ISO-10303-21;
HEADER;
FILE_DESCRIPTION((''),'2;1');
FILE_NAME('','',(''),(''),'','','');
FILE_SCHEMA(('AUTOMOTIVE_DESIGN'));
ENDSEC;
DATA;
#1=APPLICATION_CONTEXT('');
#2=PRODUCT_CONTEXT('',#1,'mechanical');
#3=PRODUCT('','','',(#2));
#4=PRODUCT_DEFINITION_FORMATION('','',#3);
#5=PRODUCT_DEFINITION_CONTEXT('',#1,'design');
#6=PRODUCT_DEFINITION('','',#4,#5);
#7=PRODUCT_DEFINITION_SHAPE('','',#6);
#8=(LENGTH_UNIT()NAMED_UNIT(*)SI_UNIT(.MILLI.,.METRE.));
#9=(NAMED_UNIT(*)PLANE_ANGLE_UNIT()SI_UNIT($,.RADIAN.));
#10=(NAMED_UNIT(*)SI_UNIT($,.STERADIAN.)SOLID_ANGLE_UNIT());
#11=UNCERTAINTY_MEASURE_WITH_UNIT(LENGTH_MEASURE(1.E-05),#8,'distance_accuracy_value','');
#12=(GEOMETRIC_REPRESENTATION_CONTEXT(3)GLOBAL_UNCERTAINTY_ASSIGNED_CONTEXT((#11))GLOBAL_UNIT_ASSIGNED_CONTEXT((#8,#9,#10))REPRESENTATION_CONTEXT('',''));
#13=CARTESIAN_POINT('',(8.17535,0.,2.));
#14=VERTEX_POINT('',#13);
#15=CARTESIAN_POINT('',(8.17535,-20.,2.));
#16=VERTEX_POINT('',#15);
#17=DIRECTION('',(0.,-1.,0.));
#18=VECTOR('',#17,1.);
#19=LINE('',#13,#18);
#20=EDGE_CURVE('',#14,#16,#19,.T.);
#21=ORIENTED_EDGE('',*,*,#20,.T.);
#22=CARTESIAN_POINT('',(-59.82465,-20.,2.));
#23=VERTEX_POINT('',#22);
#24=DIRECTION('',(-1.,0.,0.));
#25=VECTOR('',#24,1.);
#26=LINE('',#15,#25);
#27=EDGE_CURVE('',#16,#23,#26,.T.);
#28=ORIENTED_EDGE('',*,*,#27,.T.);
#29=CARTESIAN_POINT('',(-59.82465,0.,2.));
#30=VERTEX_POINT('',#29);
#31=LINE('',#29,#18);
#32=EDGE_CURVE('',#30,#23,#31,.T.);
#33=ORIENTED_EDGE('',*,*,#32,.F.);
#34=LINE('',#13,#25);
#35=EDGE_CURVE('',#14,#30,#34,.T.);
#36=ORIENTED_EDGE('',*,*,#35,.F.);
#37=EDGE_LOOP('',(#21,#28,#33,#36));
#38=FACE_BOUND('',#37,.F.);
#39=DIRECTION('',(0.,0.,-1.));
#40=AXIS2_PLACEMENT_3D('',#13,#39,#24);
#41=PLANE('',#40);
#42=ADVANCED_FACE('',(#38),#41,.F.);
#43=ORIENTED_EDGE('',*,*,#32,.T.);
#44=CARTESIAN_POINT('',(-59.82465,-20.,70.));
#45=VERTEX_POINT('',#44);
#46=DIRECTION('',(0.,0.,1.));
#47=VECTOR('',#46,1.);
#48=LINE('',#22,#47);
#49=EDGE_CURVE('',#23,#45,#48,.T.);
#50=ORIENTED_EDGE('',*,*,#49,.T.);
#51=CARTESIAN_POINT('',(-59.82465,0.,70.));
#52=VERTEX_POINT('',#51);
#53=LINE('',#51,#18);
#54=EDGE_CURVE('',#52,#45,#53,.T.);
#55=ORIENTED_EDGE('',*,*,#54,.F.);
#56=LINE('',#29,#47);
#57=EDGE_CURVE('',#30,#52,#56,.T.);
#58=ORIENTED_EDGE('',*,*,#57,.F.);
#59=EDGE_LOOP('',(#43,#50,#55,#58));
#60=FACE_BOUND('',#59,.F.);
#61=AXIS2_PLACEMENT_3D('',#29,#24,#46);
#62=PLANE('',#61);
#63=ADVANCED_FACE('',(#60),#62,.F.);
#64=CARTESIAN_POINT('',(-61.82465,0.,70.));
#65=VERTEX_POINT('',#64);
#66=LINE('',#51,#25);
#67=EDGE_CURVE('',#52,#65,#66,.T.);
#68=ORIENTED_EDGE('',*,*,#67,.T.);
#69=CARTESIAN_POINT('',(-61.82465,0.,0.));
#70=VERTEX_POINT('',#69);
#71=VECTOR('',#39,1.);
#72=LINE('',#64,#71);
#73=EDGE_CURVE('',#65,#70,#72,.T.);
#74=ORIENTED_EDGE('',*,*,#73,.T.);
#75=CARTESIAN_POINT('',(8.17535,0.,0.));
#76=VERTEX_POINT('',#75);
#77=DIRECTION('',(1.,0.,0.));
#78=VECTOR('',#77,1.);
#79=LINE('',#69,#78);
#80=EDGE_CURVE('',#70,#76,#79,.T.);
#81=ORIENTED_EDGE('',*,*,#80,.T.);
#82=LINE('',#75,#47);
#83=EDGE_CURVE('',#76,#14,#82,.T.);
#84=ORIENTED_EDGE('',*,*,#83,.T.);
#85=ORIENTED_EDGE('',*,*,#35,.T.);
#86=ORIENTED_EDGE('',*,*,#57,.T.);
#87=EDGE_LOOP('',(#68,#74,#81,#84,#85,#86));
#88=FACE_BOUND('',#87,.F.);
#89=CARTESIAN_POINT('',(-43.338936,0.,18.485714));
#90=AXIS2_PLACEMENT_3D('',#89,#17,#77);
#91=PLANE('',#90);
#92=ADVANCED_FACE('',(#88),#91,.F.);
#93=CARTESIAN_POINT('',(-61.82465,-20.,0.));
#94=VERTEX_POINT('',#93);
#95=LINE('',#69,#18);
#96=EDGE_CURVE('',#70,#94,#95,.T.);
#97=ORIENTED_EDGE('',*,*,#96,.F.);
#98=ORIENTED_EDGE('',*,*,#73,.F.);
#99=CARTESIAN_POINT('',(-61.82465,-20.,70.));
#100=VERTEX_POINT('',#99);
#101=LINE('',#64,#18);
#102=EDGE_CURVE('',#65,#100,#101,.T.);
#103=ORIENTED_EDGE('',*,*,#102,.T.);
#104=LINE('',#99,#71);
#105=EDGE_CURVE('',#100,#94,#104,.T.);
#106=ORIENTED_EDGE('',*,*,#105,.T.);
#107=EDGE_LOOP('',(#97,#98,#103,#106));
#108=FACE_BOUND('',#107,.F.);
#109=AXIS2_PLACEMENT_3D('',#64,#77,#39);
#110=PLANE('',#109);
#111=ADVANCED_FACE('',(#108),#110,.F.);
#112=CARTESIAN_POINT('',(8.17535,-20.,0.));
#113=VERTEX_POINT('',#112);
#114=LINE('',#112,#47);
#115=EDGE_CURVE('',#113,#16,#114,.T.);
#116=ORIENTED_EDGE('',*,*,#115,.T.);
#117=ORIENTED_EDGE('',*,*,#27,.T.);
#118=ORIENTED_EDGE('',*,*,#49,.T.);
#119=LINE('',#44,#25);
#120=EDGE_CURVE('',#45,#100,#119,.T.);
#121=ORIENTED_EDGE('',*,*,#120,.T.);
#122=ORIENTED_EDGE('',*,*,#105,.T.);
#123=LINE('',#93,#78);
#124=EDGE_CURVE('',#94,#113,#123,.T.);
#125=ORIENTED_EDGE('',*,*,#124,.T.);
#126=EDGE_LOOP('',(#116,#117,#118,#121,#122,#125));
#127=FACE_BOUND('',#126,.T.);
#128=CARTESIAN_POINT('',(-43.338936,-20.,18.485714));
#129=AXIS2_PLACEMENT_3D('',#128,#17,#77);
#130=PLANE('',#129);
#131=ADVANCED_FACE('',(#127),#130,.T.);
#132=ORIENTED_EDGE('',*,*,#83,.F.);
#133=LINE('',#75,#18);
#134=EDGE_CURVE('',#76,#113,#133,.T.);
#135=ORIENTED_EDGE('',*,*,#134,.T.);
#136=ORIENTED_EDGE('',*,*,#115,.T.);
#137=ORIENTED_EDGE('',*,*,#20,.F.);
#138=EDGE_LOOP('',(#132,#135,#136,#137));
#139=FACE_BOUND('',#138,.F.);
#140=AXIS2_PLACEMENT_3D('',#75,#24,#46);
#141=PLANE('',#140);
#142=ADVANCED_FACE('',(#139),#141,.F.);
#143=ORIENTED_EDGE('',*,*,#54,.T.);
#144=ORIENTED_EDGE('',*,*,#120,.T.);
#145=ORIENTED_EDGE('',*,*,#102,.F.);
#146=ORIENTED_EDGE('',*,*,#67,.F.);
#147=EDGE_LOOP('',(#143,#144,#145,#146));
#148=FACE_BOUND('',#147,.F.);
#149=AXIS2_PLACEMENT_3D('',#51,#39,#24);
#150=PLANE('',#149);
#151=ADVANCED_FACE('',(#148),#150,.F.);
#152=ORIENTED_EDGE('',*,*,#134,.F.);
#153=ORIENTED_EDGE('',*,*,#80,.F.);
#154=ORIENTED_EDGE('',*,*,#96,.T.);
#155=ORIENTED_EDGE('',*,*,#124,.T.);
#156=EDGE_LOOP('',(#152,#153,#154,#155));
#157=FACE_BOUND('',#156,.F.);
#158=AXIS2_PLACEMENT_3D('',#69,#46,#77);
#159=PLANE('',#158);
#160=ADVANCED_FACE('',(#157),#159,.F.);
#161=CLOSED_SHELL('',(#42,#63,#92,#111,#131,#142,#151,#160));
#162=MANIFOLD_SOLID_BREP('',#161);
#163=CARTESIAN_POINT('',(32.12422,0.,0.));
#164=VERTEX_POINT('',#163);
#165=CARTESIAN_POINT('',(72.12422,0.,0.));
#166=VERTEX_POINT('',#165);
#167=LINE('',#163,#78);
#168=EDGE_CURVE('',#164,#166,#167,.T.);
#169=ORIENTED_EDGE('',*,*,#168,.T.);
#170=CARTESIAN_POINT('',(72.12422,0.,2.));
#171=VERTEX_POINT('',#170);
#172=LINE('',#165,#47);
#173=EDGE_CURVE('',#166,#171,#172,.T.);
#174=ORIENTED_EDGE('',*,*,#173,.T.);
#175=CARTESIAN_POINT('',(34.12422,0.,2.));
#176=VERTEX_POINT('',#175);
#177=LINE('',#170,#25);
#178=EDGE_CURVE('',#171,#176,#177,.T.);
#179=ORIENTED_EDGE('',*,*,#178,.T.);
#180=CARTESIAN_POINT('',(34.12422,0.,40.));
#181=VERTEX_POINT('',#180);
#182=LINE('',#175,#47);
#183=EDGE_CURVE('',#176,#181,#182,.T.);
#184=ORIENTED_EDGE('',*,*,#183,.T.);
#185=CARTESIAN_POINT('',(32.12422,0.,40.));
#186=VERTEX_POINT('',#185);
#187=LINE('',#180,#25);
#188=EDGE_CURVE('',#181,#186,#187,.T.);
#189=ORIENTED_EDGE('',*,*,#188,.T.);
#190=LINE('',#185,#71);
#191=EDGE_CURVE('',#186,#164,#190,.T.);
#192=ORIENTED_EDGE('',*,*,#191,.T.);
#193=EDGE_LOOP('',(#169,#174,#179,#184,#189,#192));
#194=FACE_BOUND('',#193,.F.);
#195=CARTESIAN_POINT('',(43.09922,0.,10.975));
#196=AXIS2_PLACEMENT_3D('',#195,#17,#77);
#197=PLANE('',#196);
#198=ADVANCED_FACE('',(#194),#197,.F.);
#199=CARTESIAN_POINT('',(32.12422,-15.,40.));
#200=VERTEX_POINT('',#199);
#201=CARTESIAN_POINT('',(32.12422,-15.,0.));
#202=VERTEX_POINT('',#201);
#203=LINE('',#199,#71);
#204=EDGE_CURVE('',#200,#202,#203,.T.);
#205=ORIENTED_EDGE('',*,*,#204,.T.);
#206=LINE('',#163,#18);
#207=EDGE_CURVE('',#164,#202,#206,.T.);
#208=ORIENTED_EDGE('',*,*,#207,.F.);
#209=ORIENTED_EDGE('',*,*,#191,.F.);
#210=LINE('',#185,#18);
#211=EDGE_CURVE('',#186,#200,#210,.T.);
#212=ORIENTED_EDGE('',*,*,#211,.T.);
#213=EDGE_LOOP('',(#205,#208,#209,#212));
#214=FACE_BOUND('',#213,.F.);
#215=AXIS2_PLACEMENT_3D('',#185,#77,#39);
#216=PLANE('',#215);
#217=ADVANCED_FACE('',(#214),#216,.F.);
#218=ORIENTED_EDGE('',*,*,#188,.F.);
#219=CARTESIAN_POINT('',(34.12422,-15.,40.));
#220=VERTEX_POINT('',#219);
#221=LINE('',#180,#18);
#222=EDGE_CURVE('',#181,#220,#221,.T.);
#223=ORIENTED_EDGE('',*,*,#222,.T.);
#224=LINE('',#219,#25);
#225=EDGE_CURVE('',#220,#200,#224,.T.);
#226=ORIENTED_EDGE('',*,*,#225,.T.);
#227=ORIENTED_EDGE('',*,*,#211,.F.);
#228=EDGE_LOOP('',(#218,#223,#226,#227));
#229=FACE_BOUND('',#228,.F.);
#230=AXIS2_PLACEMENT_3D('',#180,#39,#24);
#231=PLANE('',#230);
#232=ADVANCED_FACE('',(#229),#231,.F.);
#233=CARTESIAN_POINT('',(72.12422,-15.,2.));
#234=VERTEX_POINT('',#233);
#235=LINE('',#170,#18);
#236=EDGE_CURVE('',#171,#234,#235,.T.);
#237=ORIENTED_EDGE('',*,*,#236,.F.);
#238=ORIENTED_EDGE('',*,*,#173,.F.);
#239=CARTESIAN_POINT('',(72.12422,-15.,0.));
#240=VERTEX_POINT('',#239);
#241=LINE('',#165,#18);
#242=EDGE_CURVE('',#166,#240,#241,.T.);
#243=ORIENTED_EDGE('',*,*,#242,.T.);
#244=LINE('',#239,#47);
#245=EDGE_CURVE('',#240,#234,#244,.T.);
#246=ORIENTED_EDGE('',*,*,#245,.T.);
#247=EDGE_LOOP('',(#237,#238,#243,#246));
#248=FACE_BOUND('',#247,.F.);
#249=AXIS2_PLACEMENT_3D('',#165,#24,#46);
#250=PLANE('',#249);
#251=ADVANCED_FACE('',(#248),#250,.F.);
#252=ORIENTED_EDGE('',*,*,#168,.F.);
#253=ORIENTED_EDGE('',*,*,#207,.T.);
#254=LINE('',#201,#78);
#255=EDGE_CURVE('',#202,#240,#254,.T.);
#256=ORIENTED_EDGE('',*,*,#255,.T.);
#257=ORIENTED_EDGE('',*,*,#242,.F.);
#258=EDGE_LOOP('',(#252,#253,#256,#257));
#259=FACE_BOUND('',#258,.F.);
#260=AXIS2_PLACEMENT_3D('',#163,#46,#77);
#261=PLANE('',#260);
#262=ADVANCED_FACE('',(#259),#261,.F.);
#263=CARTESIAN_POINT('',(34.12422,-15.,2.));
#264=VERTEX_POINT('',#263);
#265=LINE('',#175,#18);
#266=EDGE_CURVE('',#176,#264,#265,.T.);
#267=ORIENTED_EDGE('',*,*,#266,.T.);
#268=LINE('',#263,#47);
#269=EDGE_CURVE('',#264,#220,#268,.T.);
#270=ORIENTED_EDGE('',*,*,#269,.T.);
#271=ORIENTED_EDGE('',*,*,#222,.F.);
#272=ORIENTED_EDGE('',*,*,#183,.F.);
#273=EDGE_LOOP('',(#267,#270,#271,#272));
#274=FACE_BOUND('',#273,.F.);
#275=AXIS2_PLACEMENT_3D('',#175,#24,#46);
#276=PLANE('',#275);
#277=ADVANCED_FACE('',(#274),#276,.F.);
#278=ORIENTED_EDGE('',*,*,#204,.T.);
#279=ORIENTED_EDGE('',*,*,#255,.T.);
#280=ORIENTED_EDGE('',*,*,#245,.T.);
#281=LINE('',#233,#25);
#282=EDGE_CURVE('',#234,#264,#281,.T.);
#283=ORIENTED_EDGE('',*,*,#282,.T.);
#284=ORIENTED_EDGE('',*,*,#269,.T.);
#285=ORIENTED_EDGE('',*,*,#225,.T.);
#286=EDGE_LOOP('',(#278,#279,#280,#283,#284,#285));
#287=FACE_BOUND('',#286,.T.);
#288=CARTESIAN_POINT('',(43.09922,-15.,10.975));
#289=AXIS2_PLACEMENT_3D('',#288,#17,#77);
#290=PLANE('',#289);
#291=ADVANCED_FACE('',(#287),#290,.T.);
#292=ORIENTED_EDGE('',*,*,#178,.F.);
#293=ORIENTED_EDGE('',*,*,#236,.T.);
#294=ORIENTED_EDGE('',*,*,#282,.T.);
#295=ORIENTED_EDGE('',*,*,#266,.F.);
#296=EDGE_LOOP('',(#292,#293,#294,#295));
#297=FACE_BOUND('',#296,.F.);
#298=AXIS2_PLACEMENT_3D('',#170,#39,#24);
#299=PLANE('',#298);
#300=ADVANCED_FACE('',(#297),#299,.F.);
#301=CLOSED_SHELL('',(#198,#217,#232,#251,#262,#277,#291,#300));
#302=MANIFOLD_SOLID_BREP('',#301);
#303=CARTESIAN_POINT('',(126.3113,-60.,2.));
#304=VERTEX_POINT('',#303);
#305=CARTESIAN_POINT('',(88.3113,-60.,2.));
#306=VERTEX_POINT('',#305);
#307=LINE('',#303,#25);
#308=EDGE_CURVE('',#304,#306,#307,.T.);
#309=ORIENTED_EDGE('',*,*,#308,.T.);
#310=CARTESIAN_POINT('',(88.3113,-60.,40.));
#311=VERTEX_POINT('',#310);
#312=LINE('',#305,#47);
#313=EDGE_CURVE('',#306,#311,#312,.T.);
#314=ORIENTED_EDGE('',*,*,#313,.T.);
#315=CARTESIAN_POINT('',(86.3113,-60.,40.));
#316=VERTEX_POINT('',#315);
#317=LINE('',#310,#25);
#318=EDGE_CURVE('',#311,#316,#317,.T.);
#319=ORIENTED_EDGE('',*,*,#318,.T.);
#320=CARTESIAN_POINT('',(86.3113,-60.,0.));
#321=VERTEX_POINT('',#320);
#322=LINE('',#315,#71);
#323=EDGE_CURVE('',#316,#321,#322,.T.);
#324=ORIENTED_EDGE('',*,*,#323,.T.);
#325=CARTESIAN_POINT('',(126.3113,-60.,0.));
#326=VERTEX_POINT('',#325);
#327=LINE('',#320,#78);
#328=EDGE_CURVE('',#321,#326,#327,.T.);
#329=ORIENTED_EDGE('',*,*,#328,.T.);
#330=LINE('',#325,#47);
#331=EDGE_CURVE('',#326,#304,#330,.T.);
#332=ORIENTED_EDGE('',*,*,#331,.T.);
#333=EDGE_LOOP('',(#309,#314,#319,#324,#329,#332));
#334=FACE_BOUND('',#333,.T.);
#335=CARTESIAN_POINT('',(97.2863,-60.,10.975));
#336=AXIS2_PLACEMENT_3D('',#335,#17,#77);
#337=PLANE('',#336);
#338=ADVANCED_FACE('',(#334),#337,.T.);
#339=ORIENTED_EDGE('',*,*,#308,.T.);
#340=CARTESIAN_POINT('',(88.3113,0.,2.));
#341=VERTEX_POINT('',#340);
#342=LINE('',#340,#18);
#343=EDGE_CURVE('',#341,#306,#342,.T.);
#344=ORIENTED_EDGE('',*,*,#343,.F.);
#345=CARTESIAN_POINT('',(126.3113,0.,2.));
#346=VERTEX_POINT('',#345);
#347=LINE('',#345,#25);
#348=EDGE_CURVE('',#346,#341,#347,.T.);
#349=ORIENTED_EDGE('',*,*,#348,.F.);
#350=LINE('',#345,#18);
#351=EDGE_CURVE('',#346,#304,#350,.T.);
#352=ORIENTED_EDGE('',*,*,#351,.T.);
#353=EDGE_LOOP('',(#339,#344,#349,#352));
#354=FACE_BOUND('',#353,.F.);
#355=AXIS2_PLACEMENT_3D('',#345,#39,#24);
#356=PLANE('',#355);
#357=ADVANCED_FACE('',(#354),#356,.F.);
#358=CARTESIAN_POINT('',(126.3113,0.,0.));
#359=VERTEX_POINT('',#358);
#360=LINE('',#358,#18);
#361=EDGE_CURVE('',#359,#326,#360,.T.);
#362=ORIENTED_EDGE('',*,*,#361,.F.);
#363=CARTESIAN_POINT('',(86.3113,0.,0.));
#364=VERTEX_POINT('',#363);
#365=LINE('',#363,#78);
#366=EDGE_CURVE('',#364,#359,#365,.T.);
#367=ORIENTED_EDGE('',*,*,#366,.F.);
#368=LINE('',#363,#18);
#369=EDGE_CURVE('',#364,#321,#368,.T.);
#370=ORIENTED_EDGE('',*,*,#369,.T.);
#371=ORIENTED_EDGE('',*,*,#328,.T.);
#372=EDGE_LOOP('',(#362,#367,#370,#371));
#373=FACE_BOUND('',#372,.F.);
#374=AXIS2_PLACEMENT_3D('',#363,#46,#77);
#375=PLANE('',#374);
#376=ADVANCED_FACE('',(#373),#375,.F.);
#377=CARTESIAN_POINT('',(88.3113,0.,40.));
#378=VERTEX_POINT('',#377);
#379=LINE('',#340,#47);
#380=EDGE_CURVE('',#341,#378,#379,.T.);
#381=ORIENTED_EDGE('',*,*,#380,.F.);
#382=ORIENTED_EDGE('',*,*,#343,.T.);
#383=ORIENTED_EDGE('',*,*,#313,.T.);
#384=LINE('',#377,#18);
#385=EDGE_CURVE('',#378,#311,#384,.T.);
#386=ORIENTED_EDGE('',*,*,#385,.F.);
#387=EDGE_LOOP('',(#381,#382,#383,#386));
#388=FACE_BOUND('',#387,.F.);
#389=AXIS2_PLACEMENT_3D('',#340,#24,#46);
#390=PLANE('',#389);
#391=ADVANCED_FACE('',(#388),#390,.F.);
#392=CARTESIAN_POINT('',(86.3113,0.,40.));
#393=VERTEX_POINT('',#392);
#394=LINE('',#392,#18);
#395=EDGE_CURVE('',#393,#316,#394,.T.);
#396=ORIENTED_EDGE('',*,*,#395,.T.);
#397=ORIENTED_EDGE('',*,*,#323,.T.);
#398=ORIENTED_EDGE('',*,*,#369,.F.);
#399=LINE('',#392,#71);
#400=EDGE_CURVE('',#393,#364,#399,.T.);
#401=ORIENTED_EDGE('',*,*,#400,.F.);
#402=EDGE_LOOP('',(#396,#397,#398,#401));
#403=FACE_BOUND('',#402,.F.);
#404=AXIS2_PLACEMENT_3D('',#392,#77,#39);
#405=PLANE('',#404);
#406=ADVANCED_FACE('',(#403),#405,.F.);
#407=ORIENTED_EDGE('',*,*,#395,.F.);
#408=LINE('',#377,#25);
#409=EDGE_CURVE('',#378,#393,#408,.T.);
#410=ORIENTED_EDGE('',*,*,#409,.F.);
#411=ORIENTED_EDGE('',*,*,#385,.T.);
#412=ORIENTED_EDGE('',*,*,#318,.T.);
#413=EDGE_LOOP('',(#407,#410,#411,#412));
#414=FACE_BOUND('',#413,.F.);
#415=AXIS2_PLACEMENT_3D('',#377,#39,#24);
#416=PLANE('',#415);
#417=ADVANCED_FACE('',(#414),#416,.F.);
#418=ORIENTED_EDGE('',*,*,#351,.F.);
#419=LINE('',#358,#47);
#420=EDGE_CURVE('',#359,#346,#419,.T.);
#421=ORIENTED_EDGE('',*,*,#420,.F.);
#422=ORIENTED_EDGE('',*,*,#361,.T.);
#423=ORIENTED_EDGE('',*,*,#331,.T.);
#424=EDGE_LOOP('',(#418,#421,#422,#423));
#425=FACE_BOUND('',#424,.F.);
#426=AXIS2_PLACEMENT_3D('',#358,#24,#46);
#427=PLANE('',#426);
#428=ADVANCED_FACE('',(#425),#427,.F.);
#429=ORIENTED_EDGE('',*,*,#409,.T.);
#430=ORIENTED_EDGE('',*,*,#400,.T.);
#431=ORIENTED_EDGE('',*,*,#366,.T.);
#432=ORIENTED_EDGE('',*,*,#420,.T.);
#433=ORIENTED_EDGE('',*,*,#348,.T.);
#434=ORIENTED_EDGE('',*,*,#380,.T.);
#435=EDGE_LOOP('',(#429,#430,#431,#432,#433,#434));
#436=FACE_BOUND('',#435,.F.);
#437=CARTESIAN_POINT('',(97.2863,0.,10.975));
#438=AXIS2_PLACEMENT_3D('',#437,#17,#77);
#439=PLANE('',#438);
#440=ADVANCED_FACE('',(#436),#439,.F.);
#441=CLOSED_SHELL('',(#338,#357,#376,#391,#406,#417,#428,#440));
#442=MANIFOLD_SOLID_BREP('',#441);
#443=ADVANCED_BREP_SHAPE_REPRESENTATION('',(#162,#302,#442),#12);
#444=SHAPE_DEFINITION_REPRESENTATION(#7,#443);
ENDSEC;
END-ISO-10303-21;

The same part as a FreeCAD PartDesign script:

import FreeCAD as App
import Part
import Sketcher

V = App.Vector

doc = App.newDocument("Part")
body = doc.addObject("PartDesign::Body", "Body")

# Sketch on XZ plane
sketch1 = doc.addObject("Sketcher::SketchObject", "Sketch")
body.addObject(sketch1)
sketch1.AttachmentSupport = (doc.XZ_Plane, [""])
sketch1.MapMode = "FlatFace"
sketch1.addGeometry([
    Part.LineSegment(V(-59.8, 70, 0), V(-61.8, 70, 0)),  # 0
    Part.LineSegment(V(-61.8, 70, 0), V(-61.8, 0, 0)),  # 1
    Part.LineSegment(V(-61.8, 0, 0), V(8.2, 0, 0)),  # 2
    Part.LineSegment(V(8.2, 0, 0), V(8.2, 2, 0)),  # 3
    Part.LineSegment(V(8.2, 2, 0), V(-59.8, 2, 0)),  # 4
    Part.LineSegment(V(-59.8, 2, 0), V(-59.8, 70, 0)),  # 5
], False)
sketch1.addConstraint([
    Sketcher.Constraint("Coincident", 0, 2, 1, 1),
    Sketcher.Constraint("Coincident", 1, 2, 2, 1),
    Sketcher.Constraint("Coincident", 2, 2, 3, 1),
    Sketcher.Constraint("Coincident", 3, 2, 4, 1),
    Sketcher.Constraint("Coincident", 4, 2, 5, 1),
    Sketcher.Constraint("Coincident", 5, 2, 0, 1),
    Sketcher.Constraint("Horizontal", 0),
    Sketcher.Constraint("Vertical", 1),
    Sketcher.Constraint("Horizontal", 2),
    Sketcher.Constraint("Vertical", 3),
    Sketcher.Constraint("Horizontal", 4),
    Sketcher.Constraint("Vertical", 5),
    Sketcher.Constraint("PointOnObject", 1, 2, -1),
    Sketcher.Constraint("Equal", 2, 1),
    Sketcher.Constraint("Equal", 0, 3),
    Sketcher.Constraint("DistanceX", 0, 2, 0, 1, 2.0),
    Sketcher.Constraint("DistanceX", 2, 1, 2, 2, 70.0),
    Sketcher.Constraint("DistanceX", 0, 2, -1, 1, 61.82465),
])
pad1 = doc.addObject("PartDesign::Pad", "Pad")
body.addObject(pad1)
pad1.Profile = sketch1
pad1.Length = 20
body2 = doc.addObject("PartDesign::Body", "Body001")

# Sketch on XZ plane
sketch2 = doc.addObject("Sketcher::SketchObject", "Sketch001")
body2.addObject(sketch2)
sketch2.AttachmentSupport = (doc.getObject("XZ_Plane001"), [""])
sketch2.MapMode = "FlatFace"
sketch2.addGeometry([
    Part.LineSegment(V(34.1, 40, 0), V(32.1, 40, 0)),  # 0
    Part.LineSegment(V(32.1, 40, 0), V(32.1, 0, 0)),  # 1
    Part.LineSegment(V(32.1, 0, 0), V(72.1, 0, 0)),  # 2
    Part.LineSegment(V(72.1, 0, 0), V(72.1, 2, 0)),  # 3
    Part.LineSegment(V(72.1, 2, 0), V(34.1, 2, 0)),  # 4
    Part.LineSegment(V(34.1, 2, 0), V(34.1, 40, 0)),  # 5
], False)
sketch2.addConstraint([
    Sketcher.Constraint("Coincident", 0, 2, 1, 1),
    Sketcher.Constraint("Coincident", 1, 2, 2, 1),
    Sketcher.Constraint("Coincident", 2, 2, 3, 1),
    Sketcher.Constraint("Coincident", 3, 2, 4, 1),
    Sketcher.Constraint("Coincident", 4, 2, 5, 1),
    Sketcher.Constraint("Coincident", 5, 2, 0, 1),
    Sketcher.Constraint("Horizontal", 0),
    Sketcher.Constraint("Vertical", 1),
    Sketcher.Constraint("Horizontal", 2),
    Sketcher.Constraint("Vertical", 3),
    Sketcher.Constraint("Horizontal", 4),
    Sketcher.Constraint("Vertical", 5),
    Sketcher.Constraint("PointOnObject", 1, 2, -1),
    Sketcher.Constraint("Equal", 2, 1),
    Sketcher.Constraint("Equal", 0, 3),
    Sketcher.Constraint("DistanceX", 0, 2, 0, 1, 2.0),
    Sketcher.Constraint("DistanceX", 2, 1, 2, 2, 40.0),
    Sketcher.Constraint("DistanceX", -1, 1, 0, 2, 32.12422),
])
pad2 = doc.addObject("PartDesign::Pad", "Pad001")
body2.addObject(pad2)
pad2.Profile = sketch2
pad2.Length = 15
body3 = doc.addObject("PartDesign::Body", "Body002")

# Sketch on XZ plane
sketch3 = doc.addObject("Sketcher::SketchObject", "Sketch002")
body3.addObject(sketch3)
sketch3.AttachmentSupport = (doc.getObject("XZ_Plane002"), [""])
sketch3.MapMode = "FlatFace"
sketch3.addGeometry([
    Part.LineSegment(V(88.3, 40, 0), V(86.3, 40, 0)),  # 0
    Part.LineSegment(V(86.3, 40, 0), V(86.3, 0, 0)),  # 1
    Part.LineSegment(V(86.3, 0, 0), V(126.3, 0, 0)),  # 2
    Part.LineSegment(V(126.3, 0, 0), V(126.3, 2, 0)),  # 3
    Part.LineSegment(V(126.3, 2, 0), V(88.3, 2, 0)),  # 4
    Part.LineSegment(V(88.3, 2, 0), V(88.3, 40, 0)),  # 5
], False)
sketch3.addConstraint([
    Sketcher.Constraint("Coincident", 0, 2, 1, 1),
    Sketcher.Constraint("Coincident", 1, 2, 2, 1),
    Sketcher.Constraint("Coincident", 2, 2, 3, 1),
    Sketcher.Constraint("Coincident", 3, 2, 4, 1),
    Sketcher.Constraint("Coincident", 4, 2, 5, 1),
    Sketcher.Constraint("Coincident", 5, 2, 0, 1),
    Sketcher.Constraint("Horizontal", 0),
    Sketcher.Constraint("Vertical", 1),
    Sketcher.Constraint("Horizontal", 2),
    Sketcher.Constraint("Vertical", 3),
    Sketcher.Constraint("Horizontal", 4),
    Sketcher.Constraint("Vertical", 5),
    Sketcher.Constraint("PointOnObject", 1, 2, -1),
    Sketcher.Constraint("Equal", 2, 1),
    Sketcher.Constraint("Equal", 0, 3),
    Sketcher.Constraint("DistanceX", 0, 2, 0, 1, 2.0),
    Sketcher.Constraint("DistanceX", 2, 1, 2, 2, 40.0),
    Sketcher.Constraint("DistanceX", -1, 1, 0, 2, 86.3113),
])
pad3 = doc.addObject("PartDesign::Pad", "Pad002")
body3.addObject(pad3)
pad3.Profile = sketch3
pad3.Length = 60

doc.recompute()
